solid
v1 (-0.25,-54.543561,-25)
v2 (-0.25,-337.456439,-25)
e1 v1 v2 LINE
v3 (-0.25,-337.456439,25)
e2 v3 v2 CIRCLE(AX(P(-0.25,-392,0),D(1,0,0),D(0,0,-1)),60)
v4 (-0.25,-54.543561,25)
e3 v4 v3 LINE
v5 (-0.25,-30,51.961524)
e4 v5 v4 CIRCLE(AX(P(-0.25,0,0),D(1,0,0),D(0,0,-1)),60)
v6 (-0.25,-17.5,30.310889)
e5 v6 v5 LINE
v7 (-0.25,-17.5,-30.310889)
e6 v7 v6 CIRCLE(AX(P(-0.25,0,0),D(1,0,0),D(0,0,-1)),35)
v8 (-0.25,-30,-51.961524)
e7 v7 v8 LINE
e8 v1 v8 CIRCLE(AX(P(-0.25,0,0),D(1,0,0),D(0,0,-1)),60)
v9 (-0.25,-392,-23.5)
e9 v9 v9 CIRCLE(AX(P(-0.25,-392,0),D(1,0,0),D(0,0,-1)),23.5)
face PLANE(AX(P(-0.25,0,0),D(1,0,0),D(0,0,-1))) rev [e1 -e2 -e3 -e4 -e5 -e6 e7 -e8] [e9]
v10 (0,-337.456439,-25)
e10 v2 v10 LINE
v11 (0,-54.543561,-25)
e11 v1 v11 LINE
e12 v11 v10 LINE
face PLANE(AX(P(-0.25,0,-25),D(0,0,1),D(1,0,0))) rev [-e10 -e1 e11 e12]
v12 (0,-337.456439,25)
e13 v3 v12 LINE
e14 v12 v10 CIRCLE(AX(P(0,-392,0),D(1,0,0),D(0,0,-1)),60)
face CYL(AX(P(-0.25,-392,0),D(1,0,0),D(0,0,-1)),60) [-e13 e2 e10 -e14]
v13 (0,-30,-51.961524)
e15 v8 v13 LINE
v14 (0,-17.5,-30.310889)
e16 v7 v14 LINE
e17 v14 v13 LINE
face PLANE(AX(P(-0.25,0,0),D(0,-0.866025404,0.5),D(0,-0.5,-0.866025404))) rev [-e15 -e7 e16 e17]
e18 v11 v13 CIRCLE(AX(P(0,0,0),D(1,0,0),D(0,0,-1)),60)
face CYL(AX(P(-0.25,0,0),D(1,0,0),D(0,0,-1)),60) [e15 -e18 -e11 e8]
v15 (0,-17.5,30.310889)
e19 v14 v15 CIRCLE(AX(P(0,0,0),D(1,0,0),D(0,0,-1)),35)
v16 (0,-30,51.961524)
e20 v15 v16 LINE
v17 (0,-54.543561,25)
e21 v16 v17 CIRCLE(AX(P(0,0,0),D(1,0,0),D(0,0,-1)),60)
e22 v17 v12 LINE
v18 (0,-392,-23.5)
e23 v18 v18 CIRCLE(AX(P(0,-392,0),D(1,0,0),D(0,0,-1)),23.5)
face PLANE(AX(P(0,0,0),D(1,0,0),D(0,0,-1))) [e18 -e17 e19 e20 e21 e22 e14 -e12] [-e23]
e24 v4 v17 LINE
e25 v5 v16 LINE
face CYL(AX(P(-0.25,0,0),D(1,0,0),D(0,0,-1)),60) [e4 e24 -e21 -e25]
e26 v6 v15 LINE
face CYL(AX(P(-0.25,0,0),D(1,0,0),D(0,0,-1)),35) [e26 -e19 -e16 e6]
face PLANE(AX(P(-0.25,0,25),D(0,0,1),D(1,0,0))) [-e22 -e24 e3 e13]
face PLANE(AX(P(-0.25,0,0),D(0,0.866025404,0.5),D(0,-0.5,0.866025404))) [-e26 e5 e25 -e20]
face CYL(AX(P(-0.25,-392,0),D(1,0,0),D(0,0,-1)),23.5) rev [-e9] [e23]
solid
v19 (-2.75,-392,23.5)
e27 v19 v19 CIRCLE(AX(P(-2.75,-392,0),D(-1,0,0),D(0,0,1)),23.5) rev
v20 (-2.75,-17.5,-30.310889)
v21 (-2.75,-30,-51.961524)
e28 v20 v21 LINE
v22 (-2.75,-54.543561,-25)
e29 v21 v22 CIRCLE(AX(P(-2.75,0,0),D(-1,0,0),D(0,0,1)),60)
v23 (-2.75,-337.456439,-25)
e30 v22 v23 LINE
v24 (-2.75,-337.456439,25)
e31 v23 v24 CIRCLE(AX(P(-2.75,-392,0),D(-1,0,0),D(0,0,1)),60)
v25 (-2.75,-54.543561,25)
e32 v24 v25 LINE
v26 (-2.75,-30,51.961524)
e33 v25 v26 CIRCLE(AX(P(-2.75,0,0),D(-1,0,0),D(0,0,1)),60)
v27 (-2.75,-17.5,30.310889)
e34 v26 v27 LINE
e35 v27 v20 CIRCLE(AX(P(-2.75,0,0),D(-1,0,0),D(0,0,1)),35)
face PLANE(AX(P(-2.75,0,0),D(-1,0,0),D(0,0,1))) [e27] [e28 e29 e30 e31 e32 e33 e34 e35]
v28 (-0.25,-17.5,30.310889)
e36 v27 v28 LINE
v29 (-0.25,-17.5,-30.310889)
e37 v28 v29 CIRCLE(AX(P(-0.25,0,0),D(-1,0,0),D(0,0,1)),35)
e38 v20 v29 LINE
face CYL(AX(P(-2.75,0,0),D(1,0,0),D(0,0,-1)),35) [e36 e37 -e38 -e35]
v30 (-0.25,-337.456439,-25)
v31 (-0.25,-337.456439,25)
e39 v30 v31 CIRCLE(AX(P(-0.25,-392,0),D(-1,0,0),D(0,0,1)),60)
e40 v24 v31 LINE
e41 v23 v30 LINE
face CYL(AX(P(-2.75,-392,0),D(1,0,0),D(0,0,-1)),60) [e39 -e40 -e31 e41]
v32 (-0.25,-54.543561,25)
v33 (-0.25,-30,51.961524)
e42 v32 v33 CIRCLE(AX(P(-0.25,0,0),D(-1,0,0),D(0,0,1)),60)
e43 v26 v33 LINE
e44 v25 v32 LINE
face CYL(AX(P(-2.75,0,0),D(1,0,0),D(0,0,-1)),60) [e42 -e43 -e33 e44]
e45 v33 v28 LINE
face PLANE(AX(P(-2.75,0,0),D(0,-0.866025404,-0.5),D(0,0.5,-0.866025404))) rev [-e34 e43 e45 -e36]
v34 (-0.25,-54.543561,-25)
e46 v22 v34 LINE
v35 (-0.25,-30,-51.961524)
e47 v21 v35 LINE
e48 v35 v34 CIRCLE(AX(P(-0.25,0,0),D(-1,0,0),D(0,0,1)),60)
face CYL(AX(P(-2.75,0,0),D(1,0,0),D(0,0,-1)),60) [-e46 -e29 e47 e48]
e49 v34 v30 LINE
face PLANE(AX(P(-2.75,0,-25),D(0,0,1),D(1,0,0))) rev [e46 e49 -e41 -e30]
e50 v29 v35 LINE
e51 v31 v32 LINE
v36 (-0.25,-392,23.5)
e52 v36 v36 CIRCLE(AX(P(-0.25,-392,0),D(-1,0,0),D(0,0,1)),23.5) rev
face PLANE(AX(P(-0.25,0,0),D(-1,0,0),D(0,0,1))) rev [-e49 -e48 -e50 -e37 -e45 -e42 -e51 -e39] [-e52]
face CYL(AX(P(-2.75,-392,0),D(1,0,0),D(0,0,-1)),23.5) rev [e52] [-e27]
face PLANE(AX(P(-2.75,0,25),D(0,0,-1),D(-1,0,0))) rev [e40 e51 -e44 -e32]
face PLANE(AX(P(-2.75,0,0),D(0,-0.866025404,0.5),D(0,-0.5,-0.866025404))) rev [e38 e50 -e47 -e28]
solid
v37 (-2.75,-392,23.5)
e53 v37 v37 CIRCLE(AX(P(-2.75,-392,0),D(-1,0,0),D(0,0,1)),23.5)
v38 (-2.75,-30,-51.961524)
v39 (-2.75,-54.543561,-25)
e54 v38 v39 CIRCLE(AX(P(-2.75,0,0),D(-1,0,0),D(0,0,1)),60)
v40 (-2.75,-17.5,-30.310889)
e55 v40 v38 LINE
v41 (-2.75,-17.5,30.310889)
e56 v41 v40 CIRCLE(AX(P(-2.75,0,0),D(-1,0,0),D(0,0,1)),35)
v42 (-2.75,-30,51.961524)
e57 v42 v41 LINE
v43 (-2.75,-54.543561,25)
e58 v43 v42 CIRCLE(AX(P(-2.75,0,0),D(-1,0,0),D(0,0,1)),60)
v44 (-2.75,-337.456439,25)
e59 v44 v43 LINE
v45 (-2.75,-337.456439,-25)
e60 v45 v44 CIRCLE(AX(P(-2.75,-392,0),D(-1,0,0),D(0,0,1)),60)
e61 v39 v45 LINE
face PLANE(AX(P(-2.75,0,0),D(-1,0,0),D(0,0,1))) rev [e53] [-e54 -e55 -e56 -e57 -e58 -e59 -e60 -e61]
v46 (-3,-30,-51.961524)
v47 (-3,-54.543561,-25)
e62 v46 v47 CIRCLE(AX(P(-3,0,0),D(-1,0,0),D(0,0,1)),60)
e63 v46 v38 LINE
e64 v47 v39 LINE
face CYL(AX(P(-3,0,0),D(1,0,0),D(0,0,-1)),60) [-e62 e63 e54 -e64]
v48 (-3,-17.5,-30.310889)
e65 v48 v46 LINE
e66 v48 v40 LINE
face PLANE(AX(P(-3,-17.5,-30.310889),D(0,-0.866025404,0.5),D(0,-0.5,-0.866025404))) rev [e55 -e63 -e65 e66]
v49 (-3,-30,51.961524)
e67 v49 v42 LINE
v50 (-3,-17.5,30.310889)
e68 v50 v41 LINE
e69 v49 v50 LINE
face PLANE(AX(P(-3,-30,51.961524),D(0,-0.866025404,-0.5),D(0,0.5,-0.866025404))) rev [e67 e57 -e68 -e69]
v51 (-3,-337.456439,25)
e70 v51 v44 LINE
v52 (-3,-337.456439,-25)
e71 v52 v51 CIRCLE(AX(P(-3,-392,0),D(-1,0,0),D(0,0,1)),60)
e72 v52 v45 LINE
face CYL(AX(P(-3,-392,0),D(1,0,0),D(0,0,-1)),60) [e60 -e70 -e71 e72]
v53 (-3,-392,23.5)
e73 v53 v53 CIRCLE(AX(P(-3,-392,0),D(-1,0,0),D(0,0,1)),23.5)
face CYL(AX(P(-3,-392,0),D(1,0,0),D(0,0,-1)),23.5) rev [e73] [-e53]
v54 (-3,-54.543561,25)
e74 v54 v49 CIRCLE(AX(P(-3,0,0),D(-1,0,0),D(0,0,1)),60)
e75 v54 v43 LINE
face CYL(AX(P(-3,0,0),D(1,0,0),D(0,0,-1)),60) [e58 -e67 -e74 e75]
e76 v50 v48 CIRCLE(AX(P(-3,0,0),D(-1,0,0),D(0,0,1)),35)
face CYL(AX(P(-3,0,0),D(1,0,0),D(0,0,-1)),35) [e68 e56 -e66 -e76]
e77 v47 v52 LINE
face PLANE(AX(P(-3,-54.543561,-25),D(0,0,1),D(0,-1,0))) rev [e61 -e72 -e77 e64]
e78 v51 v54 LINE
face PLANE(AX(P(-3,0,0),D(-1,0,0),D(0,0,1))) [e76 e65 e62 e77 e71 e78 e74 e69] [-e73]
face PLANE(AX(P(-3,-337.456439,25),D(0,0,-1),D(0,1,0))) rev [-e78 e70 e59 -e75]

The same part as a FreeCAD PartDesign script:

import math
import FreeCAD as App
import Part
import Sketcher

V = App.Vector
Q = App.Units.Quantity

doc = App.newDocument("Part")
body = doc.addObject("PartDesign::Body", "Body")

# Sketch on YZ plane
sketch1 = doc.addObject("Sketcher::SketchObject", "Sketch")
body.addObject(sketch1)
sketch1.AttachmentSupport = (doc.YZ_Plane, [""])
sketch1.MapMode = "FlatFace"
sketch1.addGeometry(Part.LineSegment(V(-18, 30, 0), V(-30, 52, 0)), False)
sketch1.addGeometry(Part.ArcOfCircle(Part.Circle(V(0, 0, 0), V(0, 0, 1), 60), math.radians(120), math.radians(155)), False)
sketch1.addGeometry(Part.LineSegment(V(-55, 25, 0), V(-337, 25, 0)), False)
sketch1.addGeometry(Part.ArcOfCircle(Part.Circle(V(-392, 0, 0), V(0, 0, 1), 60), math.radians(25), math.radians(335)), False)
sketch1.addGeometry(Part.LineSegment(V(-337, -25, 0), V(-55, -25, 0)), False)
sketch1.addGeometry(Part.ArcOfCircle(Part.Circle(V(0, 0, 0), V(0, 0, 1), 60), math.radians(-155), math.radians(-120)), False)
sketch1.addGeometry(Part.LineSegment(V(-30, -52, 0), V(-18, -30, 0)), False)
sketch1.addGeometry(Part.ArcOfCircle(Part.Circle(V(0, 0, 0), V(0, 0, 1), 35), math.radians(-120), math.radians(120)), False)
sketch1.addGeometry(Part.Circle(V(-392, 0, 0), V(0, 0, 1), 24), False)
sketch1.addConstraint(Sketcher.Constraint("Coincident", 0, 2, 1, 1))
sketch1.addConstraint(Sketcher.Constraint("Coincident", 1, 2, 2, 1))
sketch1.addConstraint(Sketcher.Constraint("Coincident", 2, 2, 3, 1))
sketch1.addConstraint(Sketcher.Constraint("Coincident", 3, 2, 4, 1))
sketch1.addConstraint(Sketcher.Constraint("Coincident", 4, 2, 5, 1))
sketch1.addConstraint(Sketcher.Constraint("Coincident", 5, 2, 6, 1))
sketch1.addConstraint(Sketcher.Constraint("Coincident", 6, 2, 7, 1))
sketch1.addConstraint(Sketcher.Constraint("Coincident", 7, 2, 0, 1))
sketch1.addConstraint(Sketcher.Constraint("Horizontal", 2))
sketch1.addConstraint(Sketcher.Constraint("Horizontal", 4))
sketch1.addConstraint(Sketcher.Constraint("Coincident", 1, 3, -1, 1))
sketch1.addConstraint(Sketcher.Constraint("Coincident", 5, 3, -1, 1))
sketch1.addConstraint(Sketcher.Constraint("Coincident", 7, 3, -1, 1))
sketch1.addConstraint(Sketcher.Constraint("Coincident", 8, 3, 3, 3))
sketch1.addConstraint(Sketcher.Constraint("Equal", 1, 3))
sketch1.addConstraint(Sketcher.Constraint("Equal", 3, 5))
sketch1.addConstraint(Sketcher.Constraint("Symmetric", 2, 2, 3, 2, -1))
sketch1.addConstraint(Sketcher.Constraint("Vertical", 0, 2, 5, 2))
sketch1.addConstraint(Sketcher.Constraint("Vertical", 6, 2, 7, 2))
sketch1.addConstraint(Sketcher.Constraint("Diameter", 8, Q("47 mm")))
sketch1.addConstraint(Sketcher.Constraint("Radius", 1, Q("60 mm")))
sketch1.addConstraint(Sketcher.Constraint("Radius", 7, Q("35 mm")))
sketch1.addConstraint(Sketcher.Constraint("Angle", 0, Q("120 deg")))
sketch1.addConstraint(Sketcher.Constraint("DistanceX", 3, 3, -1, 1, Q("392 mm")))
sketch1.addConstraint(Sketcher.Constraint("DistanceX", 0, 2, -1, 1, Q("30 mm")))
sketch1.addConstraint(Sketcher.Constraint("DistanceY", -1, 1, 1, 2, Q("25 mm")))
pad1 = doc.addObject("PartDesign::Pad", "Pad")
body.addObject(pad1)
pad1.Profile = sketch1
pad1.Length = 0.25
pad1.Reversed = True
body2 = doc.addObject("PartDesign::Body", "Body001")

# Sketch on YZ plane
sketch2 = doc.addObject("Sketcher::SketchObject", "Sketch001")
body2.addObject(sketch2)
sketch2.AttachmentSupport = (doc.getObject("YZ_Plane001"), [""])
sketch2.MapMode = "FlatFace"
sketch2.AttachmentOffset = App.Placement(V(0, 0, -0.25), App.Rotation())
sketch2.addGeometry(Part.LineSegment(V(-18, -30, 0), V(-30, -52, 0)), False)
sketch2.addGeometry(Part.ArcOfCircle(Part.Circle(V(0, 0, 0), V(0, 0, 1), 60), math.radians(-155), math.radians(-120)), False)
sketch2.addGeometry(Part.LineSegment(V(-55, -25, 0), V(-337, -25, 0)), False)
sketch2.addGeometry(Part.ArcOfCircle(Part.Circle(V(-392, 0, 0), V(0, 0, 1), 60), math.radians(25), math.radians(335)), False)
sketch2.addGeometry(Part.LineSegment(V(-337, 25, 0), V(-55, 25, 0)), False)
sketch2.addGeometry(Part.ArcOfCircle(Part.Circle(V(0, 0, 0), V(0, 0, 1), 60), math.radians(120), math.radians(155)), False)
sketch2.addGeometry(Part.LineSegment(V(-30, 52, 0), V(-18, 30, 0)), False)
sketch2.addGeometry(Part.ArcOfCircle(Part.Circle(V(0, 0, 0), V(0, 0, 1), 35), math.radians(-120), math.radians(120)), False)
sketch2.addGeometry(Part.Circle(V(-392, 0, 0), V(0, 0, 1), 24), False)
sketch2.addConstraint(Sketcher.Constraint("Coincident", 0, 2, 1, 2))
sketch2.addConstraint(Sketcher.Constraint("Coincident", 1, 1, 2, 1))
sketch2.addConstraint(Sketcher.Constraint("Coincident", 2, 2, 3, 2))
sketch2.addConstraint(Sketcher.Constraint("Coincident", 3, 1, 4, 1))
sketch2.addConstraint(Sketcher.Constraint("Coincident", 4, 2, 5, 2))
sketch2.addConstraint(Sketcher.Constraint("Coincident", 5, 1, 6, 1))
sketch2.addConstraint(Sketcher.Constraint("Coincident", 6, 2, 7, 2))
sketch2.addConstraint(Sketcher.Constraint("Coincident", 7, 1, 0, 1))
sketch2.addConstraint(Sketcher.Constraint("Horizontal", 2))
sketch2.addConstraint(Sketcher.Constraint("Horizontal", 4))
sketch2.addConstraint(Sketcher.Constraint("Coincident", 1, 3, -1, 1))
sketch2.addConstraint(Sketcher.Constraint("Coincident", 5, 3, -1, 1))
sketch2.addConstraint(Sketcher.Constraint("Coincident", 7, 3, -1, 1))
sketch2.addConstraint(Sketcher.Constraint("Coincident", 8, 3, 3, 3))
sketch2.addConstraint(Sketcher.Constraint("Equal", 1, 3))
sketch2.addConstraint(Sketcher.Constraint("Equal", 3, 5))
sketch2.addConstraint(Sketcher.Constraint("Symmetric", 2, 2, 3, 1, -1))
sketch2.addConstraint(Sketcher.Constraint("Vertical", 0, 2, 5, 1))
sketch2.addConstraint(Sketcher.Constraint("Vertical", 6, 2, 7, 1))
sketch2.addConstraint(Sketcher.Constraint("Diameter", 8, Q("47 mm")))
sketch2.addConstraint(Sketcher.Constraint("Radius", 1, Q("60 mm")))
sketch2.addConstraint(Sketcher.Constraint("Radius", 7, Q("35 mm")))
sketch2.addConstraint(Sketcher.Constraint("Angle", 0, Q("-120 deg")))
sketch2.addConstraint(Sketcher.Constraint("DistanceX", 3, 3, -1, 1, Q("392 mm")))
sketch2.addConstraint(Sketcher.Constraint("DistanceX", 0, 2, -1, 1, Q("30 mm")))
sketch2.addConstraint(Sketcher.Constraint("DistanceY", 1, 1, -1, 1, Q("25 mm")))
pad2 = doc.addObject("PartDesign::Pad", "Pad001")
body2.addObject(pad2)
pad2.Profile = sketch2
pad2.Length = 2.5
pad2.Reversed = True
body3 = doc.addObject("PartDesign::Body", "Body002")

# Sketch on YZ plane
sketch3 = doc.addObject("Sketcher::SketchObject", "Sketch002")
body3.addObject(sketch3)
sketch3.AttachmentSupport = (doc.getObject("YZ_Plane002"), [""])
sketch3.MapMode = "FlatFace"
sketch3.AttachmentOffset = App.Placement(V(0, 0, -2.75), App.Rotation())
sketch3.addGeometry(Part.LineSegment(V(-30, 52, 0), V(-18, 30, 0)), False)
sketch3.addGeometry(Part.ArcOfCircle(Part.Circle(V(0, 0, 0), V(0, 0, 1), 35), math.radians(-120), math.radians(120)), False)
sketch3.addGeometry(Part.LineSegment(V(-18, -30, 0), V(-30, -52, 0)), False)
sketch3.addGeometry(Part.ArcOfCircle(Part.Circle(V(0, 0, 0), V(0, 0, 1), 60), math.radians(-155), math.radians(-120)), False)
sketch3.addGeometry(Part.LineSegment(V(-55, -25, 0), V(-337, -25, 0)), False)
sketch3.addGeometry(Part.ArcOfCircle(Part.Circle(V(-392, 0, 0), V(0, 0, 1), 60), math.radians(25), math.radians(335)), False)
sketch3.addGeometry(Part.LineSegment(V(-337, 25, 0), V(-55, 25, 0)), False)
sketch3.addGeometry(Part.ArcOfCircle(Part.Circle(V(0, 0, 0), V(0, 0, 1), 60), math.radians(120), math.radians(155)), False)
sketch3.addGeometry(Part.Circle(V(-392, 0, 0), V(0, 0, 1), 24), False)
sketch3.addConstraint(Sketcher.Constraint("Coincident", 0, 2, 1, 2))
sketch3.addConstraint(Sketcher.Constraint("Coincident", 1, 1, 2, 1))
sketch3.addConstraint(Sketcher.Constraint("Coincident", 2, 2, 3, 2))
sketch3.addConstraint(Sketcher.Constraint("Coincident", 3, 1, 4, 1))
sketch3.addConstraint(Sketcher.Constraint("Coincident", 4, 2, 5, 2))
sketch3.addConstraint(Sketcher.Constraint("Coincident", 5, 1, 6, 1))
sketch3.addConstraint(Sketcher.Constraint("Coincident", 6, 2, 7, 2))
sketch3.addConstraint(Sketcher.Constraint("Coincident", 7, 1, 0, 1))
sketch3.addConstraint(Sketcher.Constraint("Horizontal", 4))
sketch3.addConstraint(Sketcher.Constraint("Horizontal", 6))
sketch3.addConstraint(Sketcher.Constraint("Coincident", 1, 3, -1, 1))
sketch3.addConstraint(Sketcher.Constraint("Coincident", 3, 3, -1, 1))
sketch3.addConstraint(Sketcher.Constraint("Coincident", 7, 3, -1, 1))
sketch3.addConstraint(Sketcher.Constraint("Coincident", 8, 3, 5, 3))
sketch3.addConstraint(Sketcher.Constraint("Equal", 3, 5))
sketch3.addConstraint(Sketcher.Constraint("Equal", 5, 7))
sketch3.addConstraint(Sketcher.Constraint("Symmetric", 4, 2, 5, 1, -1))
sketch3.addConstraint(Sketcher.Constraint("Vertical", 0, 2, 1, 1))
sketch3.addConstraint(Sketcher.Constraint("Vertical", 2, 2, 7, 1))
sketch3.addConstraint(Sketcher.Constraint("Diameter", 8, Q("47 mm")))
sketch3.addConstraint(Sketcher.Constraint("Radius", 1, Q("35 mm")))
sketch3.addConstraint(Sketcher.Constraint("Radius", 3, Q("60 mm")))
sketch3.addConstraint(Sketcher.Constraint("Angle", 0, Q("-60 deg")))
sketch3.addConstraint(Sketcher.Constraint("DistanceX", 5, 3, -1, 1, Q("392 mm")))
sketch3.addConstraint(Sketcher.Constraint("DistanceX", 2, 2, -1, 1, Q("30 mm")))
sketch3.addConstraint(Sketcher.Constraint("DistanceY", 3, 1, -1, 1, Q("25 mm")))
pad3 = doc.addObject("PartDesign::Pad", "Pad002")
body3.addObject(pad3)
pad3.Profile = sketch3
pad3.Length = 0.25
pad3.Reversed = True

doc.recompute()
